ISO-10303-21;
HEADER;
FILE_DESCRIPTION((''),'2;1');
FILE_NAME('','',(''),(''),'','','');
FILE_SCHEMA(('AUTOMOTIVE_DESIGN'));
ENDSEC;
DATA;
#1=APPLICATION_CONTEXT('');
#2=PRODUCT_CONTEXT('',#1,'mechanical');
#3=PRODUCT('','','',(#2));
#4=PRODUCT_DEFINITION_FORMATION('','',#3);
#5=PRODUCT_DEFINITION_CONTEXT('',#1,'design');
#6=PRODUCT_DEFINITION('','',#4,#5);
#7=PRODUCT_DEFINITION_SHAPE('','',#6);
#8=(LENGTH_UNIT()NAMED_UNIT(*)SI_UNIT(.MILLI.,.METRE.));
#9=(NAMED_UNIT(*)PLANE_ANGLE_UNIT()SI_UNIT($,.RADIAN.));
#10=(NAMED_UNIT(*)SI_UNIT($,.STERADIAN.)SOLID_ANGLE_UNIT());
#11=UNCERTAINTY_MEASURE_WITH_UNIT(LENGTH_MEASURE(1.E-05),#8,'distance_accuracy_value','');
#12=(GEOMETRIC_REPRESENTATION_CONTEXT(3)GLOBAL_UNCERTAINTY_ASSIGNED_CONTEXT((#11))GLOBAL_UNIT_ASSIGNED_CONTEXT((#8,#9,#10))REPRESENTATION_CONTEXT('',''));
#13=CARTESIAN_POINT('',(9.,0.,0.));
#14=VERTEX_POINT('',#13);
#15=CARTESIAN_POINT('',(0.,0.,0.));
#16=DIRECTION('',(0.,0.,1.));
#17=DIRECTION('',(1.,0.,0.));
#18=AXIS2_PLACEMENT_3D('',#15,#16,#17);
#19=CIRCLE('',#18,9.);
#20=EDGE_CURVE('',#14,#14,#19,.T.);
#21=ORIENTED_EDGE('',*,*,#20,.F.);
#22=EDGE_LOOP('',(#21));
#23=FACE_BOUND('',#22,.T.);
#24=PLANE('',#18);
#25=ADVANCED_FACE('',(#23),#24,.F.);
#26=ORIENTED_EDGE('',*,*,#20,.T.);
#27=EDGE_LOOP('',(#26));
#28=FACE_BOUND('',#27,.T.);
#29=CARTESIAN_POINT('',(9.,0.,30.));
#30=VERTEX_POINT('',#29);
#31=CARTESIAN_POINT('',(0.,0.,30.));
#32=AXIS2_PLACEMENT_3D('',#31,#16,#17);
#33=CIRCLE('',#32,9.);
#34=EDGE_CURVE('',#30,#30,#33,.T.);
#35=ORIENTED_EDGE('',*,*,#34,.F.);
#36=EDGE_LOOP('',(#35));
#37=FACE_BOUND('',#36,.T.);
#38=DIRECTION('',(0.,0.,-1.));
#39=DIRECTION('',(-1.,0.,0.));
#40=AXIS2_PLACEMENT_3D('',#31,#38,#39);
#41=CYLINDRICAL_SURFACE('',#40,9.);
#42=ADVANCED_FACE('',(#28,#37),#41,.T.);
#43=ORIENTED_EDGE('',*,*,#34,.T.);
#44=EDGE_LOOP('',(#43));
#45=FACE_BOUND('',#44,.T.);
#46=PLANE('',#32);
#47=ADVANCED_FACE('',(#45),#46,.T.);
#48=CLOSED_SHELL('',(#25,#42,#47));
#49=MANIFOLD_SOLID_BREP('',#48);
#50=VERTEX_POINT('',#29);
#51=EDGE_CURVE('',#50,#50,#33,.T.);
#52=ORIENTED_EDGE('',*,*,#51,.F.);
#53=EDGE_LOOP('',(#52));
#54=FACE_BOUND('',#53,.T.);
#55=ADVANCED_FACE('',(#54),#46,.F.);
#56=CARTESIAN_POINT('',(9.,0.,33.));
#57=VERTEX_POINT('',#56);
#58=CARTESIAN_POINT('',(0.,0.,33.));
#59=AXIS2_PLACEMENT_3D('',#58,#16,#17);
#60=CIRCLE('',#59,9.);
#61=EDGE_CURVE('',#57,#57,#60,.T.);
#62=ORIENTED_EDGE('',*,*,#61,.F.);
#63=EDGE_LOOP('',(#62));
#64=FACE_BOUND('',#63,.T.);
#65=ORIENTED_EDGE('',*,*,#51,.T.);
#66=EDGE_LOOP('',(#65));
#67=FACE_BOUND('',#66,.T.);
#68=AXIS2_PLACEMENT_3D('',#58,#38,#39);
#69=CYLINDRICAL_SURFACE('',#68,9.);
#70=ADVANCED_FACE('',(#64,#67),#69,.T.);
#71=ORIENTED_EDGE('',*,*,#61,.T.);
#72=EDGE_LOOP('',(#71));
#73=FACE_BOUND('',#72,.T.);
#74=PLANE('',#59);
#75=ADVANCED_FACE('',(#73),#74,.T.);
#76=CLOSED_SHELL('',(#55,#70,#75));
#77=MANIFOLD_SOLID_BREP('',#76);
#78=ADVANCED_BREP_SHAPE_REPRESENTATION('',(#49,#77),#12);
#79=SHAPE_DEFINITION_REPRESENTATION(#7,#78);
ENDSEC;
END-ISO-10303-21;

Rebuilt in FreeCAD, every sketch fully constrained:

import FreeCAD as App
import Part
import Sketcher
from FreeCAD import Vector
Q = App.Units.Quantity

doc = App.newDocument("Part")
body = doc.addObject("PartDesign::Body", "Body")

# Sketch on XY plane
sketch1 = body.newObject("Sketcher::SketchObject", "Sketch")
sketch1.AttachmentSupport = (doc.getObject("XY_Plane"), [""])
sketch1.MapMode = "FlatFace"
sketch1.addGeometry(Part.Circle(Vector(0, 0, 0), Vector(0, 0, 1), 9), False)
sketch1.addConstraint(Sketcher.Constraint("Coincident", 0, 3, -1, 1))
sketch1.addConstraint(Sketcher.Constraint("Diameter", 0, Q("18 mm")))
pad1 = body.newObject("PartDesign::Pad", "Pad")
pad1.Profile = sketch1
pad1.Length = 30
body2 = doc.addObject("PartDesign::Body", "Body001")

# Sketch on XY plane
sketch2 = body2.newObject("Sketcher::SketchObject", "Sketch001")
sketch2.AttachmentSupport = (doc.getObject("XY_Plane001"), [""])
sketch2.MapMode = "FlatFace"
sketch2.AttachmentOffset = App.Placement(Vector(0, 0, 30), App.Rotation())
sketch2.addGeometry(Part.Circle(Vector(0, 0, 0), Vector(0, 0, 1), 9), False)
sketch2.addConstraint(Sketcher.Constraint("Coincident", 0, 3, -1, 1))
sketch2.addConstraint(Sketcher.Constraint("Diameter", 0, Q("18 mm")))
pad2 = body2.newObject("PartDesign::Pad", "Pad001")
pad2.Profile = sketch2
pad2.Length = 3

doc.recompute()
